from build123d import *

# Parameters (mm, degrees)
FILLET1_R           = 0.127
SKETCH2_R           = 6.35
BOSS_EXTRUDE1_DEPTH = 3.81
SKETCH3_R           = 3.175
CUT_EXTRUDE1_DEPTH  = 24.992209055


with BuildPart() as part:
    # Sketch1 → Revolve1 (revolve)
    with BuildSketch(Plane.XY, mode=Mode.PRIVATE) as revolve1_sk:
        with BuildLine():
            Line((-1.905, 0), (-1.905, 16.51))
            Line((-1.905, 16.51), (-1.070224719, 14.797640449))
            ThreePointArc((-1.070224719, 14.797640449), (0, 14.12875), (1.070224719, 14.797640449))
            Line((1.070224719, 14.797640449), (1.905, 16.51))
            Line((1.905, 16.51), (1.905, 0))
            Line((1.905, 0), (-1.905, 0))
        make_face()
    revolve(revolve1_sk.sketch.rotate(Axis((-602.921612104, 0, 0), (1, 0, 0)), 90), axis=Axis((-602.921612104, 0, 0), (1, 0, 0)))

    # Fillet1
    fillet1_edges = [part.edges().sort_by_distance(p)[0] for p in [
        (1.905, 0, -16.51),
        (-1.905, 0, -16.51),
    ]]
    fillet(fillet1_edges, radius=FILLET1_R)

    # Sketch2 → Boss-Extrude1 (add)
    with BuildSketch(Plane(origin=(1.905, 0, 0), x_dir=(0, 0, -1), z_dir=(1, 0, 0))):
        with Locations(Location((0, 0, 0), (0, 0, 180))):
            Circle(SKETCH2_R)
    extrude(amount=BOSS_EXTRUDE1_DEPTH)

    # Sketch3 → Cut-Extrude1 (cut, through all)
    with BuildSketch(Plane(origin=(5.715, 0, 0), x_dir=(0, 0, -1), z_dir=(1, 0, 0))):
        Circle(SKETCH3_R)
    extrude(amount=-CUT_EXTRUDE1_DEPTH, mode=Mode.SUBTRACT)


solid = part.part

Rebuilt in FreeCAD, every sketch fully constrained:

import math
import FreeCAD as App
import Part
import Sketcher

V = App.Vector
Q = App.Units.Quantity


def edges_at(feature, points):
    """Names of the edges that pass closest to the given points."""
    edges = feature.Shape.Edges
    near = lambda p: min(range(len(edges)), key=lambda i: edges[i].distToShape(Part.Vertex(*p))[0])
    return sorted({f"Edge{near(p) + 1}" for p in points})

doc = App.newDocument("Part")
body = doc.addObject("PartDesign::Body", "Body")

sketch1 = body.newObject("Sketcher::SketchObject", "Sketch")
sketch1.AttachmentSupport = (doc.getObject("XY_Plane"), [""])
sketch1.MapMode = "FlatFace"
sketch1.addGeometry(Part.LineSegment(V(-1.9, 16.5, 0), V(-1.9, 0, 0)), False)
sketch1.addGeometry(Part.LineSegment(V(-1.9, 0, 0), V(1.9, 0, 0)), False)
sketch1.addGeometry(Part.LineSegment(V(1.9, 0, 0), V(1.9, 16.5, 0)), False)
sketch1.addGeometry(Part.LineSegment(V(1.9, 16.5, 0), V(1.1, 14.8, 0)), False)
sketch1.addGeometry(Part.ArcOfCircle(Part.Circle(V(0, 15.3, 0), V(0, 0, 1), 1.2), math.radians(-154), math.radians(-26)), False)
sketch1.addGeometry(Part.LineSegment(V(-1.1, 14.8, 0), V(-1.9, 16.5, 0)), False)
sketch1.addConstraint(Sketcher.Constraint("Coincident", 0, 2, 1, 1))
sketch1.addConstraint(Sketcher.Constraint("Coincident", 1, 2, 2, 1))
sketch1.addConstraint(Sketcher.Constraint("Coincident", 2, 2, 3, 1))
sketch1.addConstraint(Sketcher.Constraint("Tangent", 3, 2, 4, 2))
sketch1.addConstraint(Sketcher.Constraint("Tangent", 4, 1, 5, 1))
sketch1.addConstraint(Sketcher.Constraint("Coincident", 5, 2, 0, 1))
sketch1.addConstraint(Sketcher.Constraint("Vertical", 0))
sketch1.addConstraint(Sketcher.Constraint("Horizontal", 1))
sketch1.addConstraint(Sketcher.Constraint("Vertical", 2))
sketch1.addConstraint(Sketcher.Constraint("Symmetric", 0, 2, 1, 2, -1, 1))
sketch1.addConstraint(Sketcher.Constraint("Symmetric", 3, 2, 4, 1, -2))
sketch1.addConstraint(Sketcher.Constraint("Radius", 4, Q("0.046875 in")))
sketch1.addConstraint(Sketcher.Constraint("DistanceX", 1, 1, 1, 2, Q("0.15 in")))
sketch1.addConstraint(Sketcher.Constraint("DistanceY", 0, 2, 0, 1, Q("0.65 in")))
sketch1.addConstraint(Sketcher.Constraint("Distance", 3, Q("0.075 in")))
revolution = body.newObject("PartDesign::Revolution", "Revolution")
revolution.Profile = sketch1
revolution.ReferenceAxis = (sketch1, ["H_Axis"])
revolution.Angle = 360
doc.recompute()

fillet = body.newObject("PartDesign::Fillet", "Fillet")
fillet.Base = (revolution, edges_at(revolution, [(1.905, 0, -16.51), (-1.905, 0, -16.51)]))
fillet.Radius = Q("0.005 in")

sketch2 = body.newObject("Sketcher::SketchObject", "Sketch001")
sketch2.AttachmentSupport = (doc.getObject("YZ_Plane"), [""])
sketch2.MapMode = "FlatFace"
sketch2.AttachmentOffset = App.Placement(V(0, 0, 0.075 * 25.4), App.Rotation())
sketch2.addGeometry(Part.Circle(V(0, 0, 0), V(0, 0, 1), 6), False)
sketch2.addConstraint(Sketcher.Constraint("Coincident", 0, 3, -1, 1))
sketch2.addConstraint(Sketcher.Constraint("Diameter", 0, Q("0.5 in")))
pad1 = body.newObject("PartDesign::Pad", "Pad")
pad1.Profile = sketch2
pad1.Length = Q("0.15 in")

sketch3 = body.newObject("Sketcher::SketchObject", "Sketch002")
sketch3.AttachmentSupport = (doc.getObject("YZ_Plane"), [""])
sketch3.MapMode = "FlatFace"
sketch3.AttachmentOffset = App.Placement(V(0, 0, 0.225 * 25.4), App.Rotation())
sketch3.addGeometry(Part.Circle(V(0, 0, 0), V(0, 0, 1), 3.2), False)
sketch3.addConstraint(Sketcher.Constraint("Coincident", 0, 3, -1, 1))
sketch3.addConstraint(Sketcher.Constraint("Diameter", 0, Q("0.25 in")))
pocket1 = body.newObject("PartDesign::Pocket", "Pocket")
pocket1.Profile = sketch3
pocket1.Type = "ThroughAll"

doc.recompute()
